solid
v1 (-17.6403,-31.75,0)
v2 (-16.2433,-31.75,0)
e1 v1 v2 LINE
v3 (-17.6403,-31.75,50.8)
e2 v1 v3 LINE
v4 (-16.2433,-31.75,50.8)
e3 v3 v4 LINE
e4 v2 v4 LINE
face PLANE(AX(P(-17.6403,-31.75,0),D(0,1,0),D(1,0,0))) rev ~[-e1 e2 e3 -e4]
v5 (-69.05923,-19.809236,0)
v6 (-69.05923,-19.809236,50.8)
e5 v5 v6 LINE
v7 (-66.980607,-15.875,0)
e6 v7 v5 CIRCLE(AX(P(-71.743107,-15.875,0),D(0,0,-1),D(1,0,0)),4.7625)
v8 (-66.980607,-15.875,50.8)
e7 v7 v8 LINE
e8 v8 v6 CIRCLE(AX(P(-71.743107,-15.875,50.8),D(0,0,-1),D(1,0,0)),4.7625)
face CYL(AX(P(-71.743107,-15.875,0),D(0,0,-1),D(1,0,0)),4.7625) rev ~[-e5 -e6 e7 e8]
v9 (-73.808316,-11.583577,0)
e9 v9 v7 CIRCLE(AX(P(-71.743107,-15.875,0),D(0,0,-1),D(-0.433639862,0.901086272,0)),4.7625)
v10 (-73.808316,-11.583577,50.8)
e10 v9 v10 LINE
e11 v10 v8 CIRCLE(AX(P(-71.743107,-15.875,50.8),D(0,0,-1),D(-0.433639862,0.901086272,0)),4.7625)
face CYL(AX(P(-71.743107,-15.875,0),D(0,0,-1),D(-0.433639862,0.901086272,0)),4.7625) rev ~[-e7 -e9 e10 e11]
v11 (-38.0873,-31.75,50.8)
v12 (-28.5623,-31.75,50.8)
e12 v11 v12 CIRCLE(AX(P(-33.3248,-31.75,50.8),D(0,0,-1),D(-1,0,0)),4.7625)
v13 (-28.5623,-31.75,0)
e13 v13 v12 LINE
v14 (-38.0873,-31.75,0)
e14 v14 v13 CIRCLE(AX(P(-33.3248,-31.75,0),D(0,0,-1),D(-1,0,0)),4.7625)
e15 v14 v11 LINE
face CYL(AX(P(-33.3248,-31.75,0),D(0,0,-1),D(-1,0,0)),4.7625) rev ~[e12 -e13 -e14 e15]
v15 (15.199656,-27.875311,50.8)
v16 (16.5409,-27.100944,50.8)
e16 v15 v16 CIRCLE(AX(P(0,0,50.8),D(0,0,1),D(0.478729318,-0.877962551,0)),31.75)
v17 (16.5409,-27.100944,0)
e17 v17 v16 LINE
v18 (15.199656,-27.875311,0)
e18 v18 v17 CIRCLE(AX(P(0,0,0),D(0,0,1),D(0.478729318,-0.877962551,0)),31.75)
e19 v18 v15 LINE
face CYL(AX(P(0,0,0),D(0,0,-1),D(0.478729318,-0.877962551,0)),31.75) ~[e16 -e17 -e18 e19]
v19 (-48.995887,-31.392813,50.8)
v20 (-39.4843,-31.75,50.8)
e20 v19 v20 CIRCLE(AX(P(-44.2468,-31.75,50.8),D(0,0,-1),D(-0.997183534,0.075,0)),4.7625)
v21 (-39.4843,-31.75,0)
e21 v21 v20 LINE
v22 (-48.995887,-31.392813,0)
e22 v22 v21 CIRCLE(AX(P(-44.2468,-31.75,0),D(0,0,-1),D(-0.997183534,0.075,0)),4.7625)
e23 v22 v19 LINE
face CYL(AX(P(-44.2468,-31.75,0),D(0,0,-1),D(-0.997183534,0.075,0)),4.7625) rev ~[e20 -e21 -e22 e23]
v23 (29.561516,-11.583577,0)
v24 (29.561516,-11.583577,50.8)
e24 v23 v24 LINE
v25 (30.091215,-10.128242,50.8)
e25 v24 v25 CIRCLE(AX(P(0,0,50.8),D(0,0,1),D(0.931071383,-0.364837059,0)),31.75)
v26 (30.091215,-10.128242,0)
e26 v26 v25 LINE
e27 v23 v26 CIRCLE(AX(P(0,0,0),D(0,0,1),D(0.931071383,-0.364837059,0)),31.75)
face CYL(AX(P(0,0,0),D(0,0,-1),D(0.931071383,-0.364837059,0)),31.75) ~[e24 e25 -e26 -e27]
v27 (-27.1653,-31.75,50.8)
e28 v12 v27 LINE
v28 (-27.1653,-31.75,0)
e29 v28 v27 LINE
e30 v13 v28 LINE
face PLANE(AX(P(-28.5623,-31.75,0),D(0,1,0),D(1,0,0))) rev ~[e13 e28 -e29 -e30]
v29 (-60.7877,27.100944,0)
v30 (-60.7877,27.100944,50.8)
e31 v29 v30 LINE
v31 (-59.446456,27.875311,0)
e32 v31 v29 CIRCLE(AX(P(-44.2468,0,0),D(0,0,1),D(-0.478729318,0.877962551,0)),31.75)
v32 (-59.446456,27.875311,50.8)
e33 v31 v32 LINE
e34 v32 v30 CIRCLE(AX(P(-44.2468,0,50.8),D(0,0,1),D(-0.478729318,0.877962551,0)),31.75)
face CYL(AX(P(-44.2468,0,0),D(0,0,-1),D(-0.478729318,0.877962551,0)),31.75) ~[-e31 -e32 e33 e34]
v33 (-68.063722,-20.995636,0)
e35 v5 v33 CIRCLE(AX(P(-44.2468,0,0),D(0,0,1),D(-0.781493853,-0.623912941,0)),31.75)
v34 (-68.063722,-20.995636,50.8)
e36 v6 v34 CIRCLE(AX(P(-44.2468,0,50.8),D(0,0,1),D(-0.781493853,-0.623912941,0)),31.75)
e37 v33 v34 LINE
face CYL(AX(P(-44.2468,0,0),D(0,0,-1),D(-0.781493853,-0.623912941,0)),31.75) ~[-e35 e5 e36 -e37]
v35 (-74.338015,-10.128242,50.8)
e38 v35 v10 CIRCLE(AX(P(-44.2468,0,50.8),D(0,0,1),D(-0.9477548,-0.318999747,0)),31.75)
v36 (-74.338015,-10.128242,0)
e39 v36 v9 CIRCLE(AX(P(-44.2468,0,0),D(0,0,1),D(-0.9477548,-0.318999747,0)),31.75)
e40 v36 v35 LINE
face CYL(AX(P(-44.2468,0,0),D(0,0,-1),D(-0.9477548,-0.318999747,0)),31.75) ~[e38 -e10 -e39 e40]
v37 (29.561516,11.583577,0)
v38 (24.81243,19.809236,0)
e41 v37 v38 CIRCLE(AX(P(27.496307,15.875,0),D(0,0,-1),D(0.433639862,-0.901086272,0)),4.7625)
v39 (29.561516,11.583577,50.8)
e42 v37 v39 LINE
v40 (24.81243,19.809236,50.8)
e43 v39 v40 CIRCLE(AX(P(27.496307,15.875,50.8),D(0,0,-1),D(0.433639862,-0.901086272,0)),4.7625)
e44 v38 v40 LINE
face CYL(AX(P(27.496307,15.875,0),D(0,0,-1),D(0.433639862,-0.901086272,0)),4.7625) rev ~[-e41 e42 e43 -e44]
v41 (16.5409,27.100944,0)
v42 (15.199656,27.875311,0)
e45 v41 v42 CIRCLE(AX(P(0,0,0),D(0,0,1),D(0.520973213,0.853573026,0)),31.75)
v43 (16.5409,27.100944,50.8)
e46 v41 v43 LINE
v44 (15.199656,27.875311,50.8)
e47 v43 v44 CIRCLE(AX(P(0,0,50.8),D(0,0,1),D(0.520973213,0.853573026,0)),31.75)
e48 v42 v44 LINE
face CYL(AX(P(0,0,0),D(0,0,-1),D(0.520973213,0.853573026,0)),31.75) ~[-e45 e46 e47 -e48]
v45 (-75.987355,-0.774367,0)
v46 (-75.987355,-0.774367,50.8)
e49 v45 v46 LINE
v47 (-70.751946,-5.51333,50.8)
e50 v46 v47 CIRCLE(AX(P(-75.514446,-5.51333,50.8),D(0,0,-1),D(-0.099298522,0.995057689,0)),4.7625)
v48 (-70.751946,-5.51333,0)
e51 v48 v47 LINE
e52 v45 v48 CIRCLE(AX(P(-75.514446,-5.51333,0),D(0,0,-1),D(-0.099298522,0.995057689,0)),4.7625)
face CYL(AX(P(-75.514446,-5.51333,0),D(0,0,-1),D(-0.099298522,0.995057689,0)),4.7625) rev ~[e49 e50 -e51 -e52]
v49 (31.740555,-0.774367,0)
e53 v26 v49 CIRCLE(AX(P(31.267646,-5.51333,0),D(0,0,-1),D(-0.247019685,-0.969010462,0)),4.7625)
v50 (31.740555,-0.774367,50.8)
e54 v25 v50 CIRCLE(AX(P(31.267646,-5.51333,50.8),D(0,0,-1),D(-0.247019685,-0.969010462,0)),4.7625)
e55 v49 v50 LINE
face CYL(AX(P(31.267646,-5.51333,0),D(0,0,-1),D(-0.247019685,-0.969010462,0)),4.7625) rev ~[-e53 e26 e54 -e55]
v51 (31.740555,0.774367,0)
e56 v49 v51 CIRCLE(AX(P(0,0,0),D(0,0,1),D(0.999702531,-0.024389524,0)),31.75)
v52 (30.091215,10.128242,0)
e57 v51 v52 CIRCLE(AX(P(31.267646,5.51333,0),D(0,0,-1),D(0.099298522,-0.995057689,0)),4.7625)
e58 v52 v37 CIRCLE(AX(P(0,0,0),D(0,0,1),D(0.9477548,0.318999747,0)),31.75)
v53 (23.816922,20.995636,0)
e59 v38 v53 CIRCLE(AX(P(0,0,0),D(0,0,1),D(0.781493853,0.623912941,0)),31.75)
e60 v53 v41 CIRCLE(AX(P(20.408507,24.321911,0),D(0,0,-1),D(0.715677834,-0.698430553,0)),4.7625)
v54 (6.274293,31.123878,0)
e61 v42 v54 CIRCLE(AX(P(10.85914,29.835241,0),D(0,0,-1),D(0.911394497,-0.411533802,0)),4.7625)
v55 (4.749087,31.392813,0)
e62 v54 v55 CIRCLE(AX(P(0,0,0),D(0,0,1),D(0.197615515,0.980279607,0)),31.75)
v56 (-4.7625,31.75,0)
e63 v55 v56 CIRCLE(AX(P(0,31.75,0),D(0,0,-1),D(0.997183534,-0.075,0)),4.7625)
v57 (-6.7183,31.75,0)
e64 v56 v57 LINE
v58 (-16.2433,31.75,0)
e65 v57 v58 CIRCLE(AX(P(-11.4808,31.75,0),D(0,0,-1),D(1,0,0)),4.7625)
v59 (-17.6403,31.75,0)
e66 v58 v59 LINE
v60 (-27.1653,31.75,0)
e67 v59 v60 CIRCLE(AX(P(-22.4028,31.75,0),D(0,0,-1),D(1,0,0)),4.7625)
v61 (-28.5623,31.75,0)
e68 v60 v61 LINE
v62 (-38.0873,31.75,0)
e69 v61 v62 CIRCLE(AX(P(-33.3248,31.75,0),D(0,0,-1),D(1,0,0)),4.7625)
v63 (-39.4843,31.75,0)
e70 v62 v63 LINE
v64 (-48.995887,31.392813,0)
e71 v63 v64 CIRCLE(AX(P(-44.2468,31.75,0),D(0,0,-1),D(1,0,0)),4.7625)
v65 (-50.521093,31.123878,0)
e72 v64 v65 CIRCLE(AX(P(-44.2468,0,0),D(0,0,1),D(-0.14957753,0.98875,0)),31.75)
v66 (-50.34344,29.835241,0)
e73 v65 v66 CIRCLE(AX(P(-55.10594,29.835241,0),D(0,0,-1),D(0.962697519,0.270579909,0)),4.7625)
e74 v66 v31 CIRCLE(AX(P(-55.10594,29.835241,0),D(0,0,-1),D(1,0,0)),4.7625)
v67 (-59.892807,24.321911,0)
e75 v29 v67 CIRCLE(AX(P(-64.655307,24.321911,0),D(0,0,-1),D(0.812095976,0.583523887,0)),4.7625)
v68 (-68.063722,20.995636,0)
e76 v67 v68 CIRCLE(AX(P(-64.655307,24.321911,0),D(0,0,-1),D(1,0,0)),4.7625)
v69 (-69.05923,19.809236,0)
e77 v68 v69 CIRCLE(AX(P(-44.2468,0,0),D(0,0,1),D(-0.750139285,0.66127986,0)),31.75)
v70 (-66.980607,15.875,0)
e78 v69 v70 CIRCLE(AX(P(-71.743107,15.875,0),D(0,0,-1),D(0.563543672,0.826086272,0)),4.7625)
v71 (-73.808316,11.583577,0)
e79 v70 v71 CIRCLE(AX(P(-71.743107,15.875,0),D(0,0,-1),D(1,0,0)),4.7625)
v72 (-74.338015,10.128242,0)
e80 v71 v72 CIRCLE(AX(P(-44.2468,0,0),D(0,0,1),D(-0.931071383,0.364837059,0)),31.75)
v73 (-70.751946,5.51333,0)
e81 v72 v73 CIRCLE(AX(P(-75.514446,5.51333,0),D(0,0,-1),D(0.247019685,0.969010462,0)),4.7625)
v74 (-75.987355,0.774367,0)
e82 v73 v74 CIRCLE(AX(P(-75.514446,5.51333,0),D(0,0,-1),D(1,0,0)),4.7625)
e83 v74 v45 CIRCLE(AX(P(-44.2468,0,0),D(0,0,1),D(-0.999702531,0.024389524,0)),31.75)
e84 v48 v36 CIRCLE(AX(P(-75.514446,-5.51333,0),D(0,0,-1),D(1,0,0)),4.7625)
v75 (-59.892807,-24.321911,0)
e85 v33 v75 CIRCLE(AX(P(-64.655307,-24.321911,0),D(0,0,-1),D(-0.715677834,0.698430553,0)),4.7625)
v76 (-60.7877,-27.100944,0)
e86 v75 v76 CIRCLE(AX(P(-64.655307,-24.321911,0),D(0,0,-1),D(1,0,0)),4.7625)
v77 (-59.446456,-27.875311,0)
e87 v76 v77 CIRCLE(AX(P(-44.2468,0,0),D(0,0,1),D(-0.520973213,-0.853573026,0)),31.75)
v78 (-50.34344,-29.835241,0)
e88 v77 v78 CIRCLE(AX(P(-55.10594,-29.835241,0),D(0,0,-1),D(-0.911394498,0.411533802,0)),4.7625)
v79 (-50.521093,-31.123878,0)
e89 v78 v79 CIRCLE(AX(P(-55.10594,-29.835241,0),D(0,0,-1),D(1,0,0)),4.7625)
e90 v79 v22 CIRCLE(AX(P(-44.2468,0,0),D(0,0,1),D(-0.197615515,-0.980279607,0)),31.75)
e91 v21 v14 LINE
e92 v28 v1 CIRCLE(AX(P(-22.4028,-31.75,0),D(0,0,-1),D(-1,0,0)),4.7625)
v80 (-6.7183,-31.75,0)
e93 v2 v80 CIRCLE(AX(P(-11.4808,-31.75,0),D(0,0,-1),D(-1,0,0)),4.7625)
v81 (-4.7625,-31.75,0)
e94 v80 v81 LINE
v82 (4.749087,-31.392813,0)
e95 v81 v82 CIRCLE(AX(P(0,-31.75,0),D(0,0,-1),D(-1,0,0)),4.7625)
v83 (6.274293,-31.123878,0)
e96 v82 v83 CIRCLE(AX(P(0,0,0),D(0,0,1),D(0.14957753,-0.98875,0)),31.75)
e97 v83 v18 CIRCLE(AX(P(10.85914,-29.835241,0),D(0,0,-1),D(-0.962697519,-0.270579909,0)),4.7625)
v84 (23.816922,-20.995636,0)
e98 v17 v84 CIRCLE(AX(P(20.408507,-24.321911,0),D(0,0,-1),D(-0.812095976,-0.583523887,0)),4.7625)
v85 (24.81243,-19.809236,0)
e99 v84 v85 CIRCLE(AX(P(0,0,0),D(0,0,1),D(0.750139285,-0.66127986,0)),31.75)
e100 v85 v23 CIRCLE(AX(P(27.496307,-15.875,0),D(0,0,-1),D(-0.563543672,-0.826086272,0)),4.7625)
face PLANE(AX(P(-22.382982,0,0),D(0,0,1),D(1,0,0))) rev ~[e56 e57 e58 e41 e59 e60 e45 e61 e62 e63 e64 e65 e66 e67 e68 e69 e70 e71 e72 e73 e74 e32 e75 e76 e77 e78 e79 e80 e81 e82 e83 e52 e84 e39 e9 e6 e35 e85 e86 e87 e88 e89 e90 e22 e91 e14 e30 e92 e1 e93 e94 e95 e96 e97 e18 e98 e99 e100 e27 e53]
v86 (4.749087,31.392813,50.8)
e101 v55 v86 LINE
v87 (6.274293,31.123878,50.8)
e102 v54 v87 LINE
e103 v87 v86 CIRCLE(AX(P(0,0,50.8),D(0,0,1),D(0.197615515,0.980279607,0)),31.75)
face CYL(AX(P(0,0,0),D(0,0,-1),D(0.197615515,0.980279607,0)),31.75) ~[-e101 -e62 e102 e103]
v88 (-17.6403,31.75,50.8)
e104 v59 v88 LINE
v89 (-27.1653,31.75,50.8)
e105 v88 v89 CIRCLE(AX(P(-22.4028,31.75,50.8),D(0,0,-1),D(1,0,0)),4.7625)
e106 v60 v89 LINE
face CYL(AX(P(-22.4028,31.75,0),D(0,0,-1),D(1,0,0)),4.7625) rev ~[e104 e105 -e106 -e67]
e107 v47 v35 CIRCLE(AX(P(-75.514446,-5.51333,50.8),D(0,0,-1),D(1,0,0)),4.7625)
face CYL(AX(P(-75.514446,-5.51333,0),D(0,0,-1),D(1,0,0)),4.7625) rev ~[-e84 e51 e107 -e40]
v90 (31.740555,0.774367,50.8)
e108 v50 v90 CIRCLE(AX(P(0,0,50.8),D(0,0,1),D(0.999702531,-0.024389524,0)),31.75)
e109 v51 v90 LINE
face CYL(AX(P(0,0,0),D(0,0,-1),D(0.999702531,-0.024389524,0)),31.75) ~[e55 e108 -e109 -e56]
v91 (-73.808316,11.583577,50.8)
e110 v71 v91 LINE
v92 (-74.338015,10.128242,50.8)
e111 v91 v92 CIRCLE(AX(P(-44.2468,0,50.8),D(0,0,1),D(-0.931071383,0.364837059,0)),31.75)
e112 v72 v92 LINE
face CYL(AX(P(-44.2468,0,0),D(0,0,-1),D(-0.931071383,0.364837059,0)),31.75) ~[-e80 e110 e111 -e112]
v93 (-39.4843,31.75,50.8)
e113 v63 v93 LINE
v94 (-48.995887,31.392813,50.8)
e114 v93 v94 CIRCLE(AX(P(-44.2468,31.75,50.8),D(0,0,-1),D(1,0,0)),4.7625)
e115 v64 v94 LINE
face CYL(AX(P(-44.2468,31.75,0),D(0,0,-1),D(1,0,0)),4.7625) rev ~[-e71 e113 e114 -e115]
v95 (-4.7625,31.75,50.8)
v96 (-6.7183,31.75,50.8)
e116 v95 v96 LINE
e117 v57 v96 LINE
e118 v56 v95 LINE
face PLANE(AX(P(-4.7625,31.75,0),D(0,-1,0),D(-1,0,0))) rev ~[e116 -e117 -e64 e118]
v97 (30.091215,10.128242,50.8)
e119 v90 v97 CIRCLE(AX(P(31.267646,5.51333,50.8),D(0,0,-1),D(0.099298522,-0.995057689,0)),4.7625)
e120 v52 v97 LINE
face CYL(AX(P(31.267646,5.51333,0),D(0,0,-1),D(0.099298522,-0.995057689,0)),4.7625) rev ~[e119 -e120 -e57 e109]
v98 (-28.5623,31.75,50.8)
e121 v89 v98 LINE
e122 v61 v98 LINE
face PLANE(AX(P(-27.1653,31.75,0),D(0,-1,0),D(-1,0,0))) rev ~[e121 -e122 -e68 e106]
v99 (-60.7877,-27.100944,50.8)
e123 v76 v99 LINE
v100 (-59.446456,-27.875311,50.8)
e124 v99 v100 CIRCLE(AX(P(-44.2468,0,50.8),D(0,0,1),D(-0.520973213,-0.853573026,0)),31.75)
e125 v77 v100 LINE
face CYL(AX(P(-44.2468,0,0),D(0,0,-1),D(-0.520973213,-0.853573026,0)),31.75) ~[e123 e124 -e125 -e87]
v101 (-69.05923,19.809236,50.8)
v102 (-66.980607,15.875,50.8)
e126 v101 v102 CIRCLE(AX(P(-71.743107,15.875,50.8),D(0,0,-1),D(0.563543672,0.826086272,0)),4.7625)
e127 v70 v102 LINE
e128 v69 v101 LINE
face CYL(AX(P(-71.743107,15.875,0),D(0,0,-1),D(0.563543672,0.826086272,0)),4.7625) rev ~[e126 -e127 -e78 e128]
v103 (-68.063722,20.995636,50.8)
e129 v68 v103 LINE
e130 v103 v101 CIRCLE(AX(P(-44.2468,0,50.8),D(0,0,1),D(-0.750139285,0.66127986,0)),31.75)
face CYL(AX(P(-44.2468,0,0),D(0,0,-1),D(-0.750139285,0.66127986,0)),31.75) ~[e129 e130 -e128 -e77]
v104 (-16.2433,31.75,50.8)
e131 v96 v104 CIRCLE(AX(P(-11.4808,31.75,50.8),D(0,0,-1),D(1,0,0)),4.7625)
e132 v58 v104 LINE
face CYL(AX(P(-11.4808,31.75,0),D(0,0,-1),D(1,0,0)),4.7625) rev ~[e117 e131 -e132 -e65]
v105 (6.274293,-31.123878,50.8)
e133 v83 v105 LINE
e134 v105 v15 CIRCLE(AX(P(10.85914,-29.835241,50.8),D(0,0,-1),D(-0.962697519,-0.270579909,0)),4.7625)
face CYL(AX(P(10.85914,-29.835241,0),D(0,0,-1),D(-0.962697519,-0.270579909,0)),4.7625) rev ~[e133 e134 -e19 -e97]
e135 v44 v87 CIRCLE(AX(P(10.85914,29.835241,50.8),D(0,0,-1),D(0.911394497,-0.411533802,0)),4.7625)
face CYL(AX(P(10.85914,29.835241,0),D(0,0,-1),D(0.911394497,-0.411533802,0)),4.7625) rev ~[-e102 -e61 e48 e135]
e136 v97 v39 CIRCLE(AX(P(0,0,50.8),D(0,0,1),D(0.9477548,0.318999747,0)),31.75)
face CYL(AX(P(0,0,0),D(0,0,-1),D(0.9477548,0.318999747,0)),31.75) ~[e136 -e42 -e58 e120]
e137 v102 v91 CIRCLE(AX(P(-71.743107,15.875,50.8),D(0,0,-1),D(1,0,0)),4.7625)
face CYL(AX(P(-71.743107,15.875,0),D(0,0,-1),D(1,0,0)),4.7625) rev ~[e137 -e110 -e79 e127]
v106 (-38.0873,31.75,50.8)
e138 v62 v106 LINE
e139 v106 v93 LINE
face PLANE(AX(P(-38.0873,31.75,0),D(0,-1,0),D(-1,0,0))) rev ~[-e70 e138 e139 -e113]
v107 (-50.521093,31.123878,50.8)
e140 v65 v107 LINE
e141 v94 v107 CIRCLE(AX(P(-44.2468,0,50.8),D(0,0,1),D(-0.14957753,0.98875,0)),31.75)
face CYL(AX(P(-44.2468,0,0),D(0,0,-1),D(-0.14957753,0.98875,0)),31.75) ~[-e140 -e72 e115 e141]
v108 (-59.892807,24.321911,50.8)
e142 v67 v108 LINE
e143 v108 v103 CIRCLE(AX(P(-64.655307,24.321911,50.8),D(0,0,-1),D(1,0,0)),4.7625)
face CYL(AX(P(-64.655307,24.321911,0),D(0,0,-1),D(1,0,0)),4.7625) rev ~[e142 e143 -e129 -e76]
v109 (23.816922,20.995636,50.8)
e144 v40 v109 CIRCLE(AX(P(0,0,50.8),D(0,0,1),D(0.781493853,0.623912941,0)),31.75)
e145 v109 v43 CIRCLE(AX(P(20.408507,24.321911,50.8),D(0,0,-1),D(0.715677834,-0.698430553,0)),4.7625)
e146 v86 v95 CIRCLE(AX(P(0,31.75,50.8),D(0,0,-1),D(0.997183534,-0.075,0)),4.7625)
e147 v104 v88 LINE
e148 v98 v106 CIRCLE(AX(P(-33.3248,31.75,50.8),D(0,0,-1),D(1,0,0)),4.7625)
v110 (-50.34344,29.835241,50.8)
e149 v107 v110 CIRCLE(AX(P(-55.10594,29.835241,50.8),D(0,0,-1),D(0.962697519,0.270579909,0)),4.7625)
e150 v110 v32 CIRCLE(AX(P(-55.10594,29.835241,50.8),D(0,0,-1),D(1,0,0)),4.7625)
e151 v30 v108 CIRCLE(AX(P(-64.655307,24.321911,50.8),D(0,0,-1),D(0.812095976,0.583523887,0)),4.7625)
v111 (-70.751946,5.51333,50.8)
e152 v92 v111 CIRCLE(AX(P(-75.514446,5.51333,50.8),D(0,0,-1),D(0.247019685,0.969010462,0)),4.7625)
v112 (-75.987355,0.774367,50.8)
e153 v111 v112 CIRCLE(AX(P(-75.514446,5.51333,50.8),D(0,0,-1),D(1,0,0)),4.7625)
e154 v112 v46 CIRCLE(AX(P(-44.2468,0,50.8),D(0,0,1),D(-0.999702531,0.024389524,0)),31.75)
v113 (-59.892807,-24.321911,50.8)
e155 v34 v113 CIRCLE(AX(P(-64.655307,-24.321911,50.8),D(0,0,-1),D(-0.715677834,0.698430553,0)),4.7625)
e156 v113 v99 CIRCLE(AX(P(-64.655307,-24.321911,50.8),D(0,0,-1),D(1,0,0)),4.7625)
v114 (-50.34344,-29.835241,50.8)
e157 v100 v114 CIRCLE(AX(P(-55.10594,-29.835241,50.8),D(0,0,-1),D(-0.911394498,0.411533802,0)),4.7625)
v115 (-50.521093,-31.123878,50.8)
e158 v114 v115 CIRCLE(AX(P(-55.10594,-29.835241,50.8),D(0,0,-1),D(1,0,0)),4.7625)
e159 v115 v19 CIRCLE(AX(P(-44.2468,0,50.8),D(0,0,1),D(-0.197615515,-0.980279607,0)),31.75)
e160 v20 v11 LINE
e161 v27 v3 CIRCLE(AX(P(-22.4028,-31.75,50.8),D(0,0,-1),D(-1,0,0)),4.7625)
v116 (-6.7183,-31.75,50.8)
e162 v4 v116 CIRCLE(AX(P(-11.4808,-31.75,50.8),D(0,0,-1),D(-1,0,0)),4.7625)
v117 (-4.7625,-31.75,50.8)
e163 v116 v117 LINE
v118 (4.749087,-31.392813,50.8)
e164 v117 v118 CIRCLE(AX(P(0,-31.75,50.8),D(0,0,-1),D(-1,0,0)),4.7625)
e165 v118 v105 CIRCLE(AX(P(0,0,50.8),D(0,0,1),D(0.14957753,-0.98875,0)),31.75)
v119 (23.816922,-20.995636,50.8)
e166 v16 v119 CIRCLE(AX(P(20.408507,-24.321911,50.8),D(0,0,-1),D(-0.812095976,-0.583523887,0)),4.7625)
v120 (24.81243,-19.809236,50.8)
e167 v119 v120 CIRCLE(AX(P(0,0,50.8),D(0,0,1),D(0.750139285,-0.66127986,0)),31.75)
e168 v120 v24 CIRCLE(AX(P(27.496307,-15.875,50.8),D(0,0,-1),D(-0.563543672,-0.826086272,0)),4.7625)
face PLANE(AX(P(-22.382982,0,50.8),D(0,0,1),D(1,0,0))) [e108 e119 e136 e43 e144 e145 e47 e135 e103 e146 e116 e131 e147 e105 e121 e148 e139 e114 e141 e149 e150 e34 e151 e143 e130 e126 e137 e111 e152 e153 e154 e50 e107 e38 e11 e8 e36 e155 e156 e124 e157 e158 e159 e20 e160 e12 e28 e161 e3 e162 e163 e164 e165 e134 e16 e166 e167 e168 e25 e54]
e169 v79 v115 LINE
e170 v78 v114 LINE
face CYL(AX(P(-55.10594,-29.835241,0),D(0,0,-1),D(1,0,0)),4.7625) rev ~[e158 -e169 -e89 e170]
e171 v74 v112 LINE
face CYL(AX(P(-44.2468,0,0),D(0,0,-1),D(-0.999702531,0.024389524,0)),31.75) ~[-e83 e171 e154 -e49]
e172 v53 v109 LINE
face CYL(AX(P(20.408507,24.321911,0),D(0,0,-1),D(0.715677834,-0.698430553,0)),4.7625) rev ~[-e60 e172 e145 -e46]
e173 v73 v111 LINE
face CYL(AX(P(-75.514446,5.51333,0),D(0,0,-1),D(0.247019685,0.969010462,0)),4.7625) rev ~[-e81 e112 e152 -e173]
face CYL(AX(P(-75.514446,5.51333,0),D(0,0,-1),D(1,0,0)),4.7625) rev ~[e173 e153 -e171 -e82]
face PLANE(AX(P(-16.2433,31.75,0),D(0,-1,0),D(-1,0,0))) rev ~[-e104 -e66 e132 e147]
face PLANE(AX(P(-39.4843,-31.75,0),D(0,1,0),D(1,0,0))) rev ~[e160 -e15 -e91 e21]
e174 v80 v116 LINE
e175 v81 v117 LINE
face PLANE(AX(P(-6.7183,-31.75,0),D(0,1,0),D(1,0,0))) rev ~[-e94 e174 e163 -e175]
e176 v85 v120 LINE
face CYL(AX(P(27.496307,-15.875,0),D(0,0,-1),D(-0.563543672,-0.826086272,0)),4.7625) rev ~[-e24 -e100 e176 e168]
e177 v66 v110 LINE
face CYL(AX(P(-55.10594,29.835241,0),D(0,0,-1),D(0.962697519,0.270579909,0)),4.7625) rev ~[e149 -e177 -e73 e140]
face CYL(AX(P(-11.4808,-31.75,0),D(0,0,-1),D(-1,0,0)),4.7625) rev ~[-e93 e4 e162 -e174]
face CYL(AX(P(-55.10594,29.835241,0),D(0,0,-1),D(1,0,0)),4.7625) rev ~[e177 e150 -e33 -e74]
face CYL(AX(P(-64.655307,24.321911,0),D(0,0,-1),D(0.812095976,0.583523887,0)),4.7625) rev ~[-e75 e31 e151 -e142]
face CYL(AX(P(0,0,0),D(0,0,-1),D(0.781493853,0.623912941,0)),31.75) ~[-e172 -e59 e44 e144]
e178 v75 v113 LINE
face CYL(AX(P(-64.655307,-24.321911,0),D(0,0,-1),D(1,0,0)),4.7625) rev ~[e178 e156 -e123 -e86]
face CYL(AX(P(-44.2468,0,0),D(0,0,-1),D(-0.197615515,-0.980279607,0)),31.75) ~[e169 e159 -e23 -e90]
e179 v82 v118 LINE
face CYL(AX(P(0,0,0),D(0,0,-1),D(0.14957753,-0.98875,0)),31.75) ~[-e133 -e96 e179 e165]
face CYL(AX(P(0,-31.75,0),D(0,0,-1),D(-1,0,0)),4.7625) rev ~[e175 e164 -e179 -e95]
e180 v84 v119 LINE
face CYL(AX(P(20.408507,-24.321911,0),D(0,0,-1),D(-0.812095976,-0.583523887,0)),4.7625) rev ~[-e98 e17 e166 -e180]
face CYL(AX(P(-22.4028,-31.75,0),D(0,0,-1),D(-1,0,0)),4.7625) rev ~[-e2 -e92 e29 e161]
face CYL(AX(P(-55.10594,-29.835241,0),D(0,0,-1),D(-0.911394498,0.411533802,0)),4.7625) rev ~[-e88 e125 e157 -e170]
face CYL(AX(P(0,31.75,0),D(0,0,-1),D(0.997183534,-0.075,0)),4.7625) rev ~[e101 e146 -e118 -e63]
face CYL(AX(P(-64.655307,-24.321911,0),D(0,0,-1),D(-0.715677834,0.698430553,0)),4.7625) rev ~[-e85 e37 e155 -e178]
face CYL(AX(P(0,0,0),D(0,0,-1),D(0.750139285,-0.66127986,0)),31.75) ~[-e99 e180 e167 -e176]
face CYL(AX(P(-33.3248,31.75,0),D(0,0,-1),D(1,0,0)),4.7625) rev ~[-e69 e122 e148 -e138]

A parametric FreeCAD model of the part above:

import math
import FreeCAD as App
import Part
import Sketcher
from FreeCAD import Vector
Q = App.Units.Quantity

doc = App.newDocument("Part")
params = doc.addObject("Spreadsheet::Sheet", "Params")
for row, (alias, value) in enumerate([
    ("sketch1_radius", "1.25 in"),
    ("sketch1_radius2", "0.1875 in"),
    ("sketch1_width", "0.055 in"),
    ("sketch1_width2", "0.077 in"),
    ("pad1_length", "2 in"),
], start=1):
    params.set(f"A{row}", alias)
    params.set(f"B{row}", "=" + value)
    params.setAlias(f"B{row}", alias)

body = doc.addObject("PartDesign::Body", "Body")

sketch1 = body.newObject("Sketcher::SketchObject", "Sketch")
sketch1.AttachmentSupport = (doc.getObject("XY_Plane"), [""])
sketch1.MapMode = "FlatFace"
sketch1.addGeometry(Part.ArcOfCircle(Part.Circle(Vector(-44.2, 31.8, 0), Vector(0, 0, 1), 4.8), math.radians(-176), math.radians(0)), False)
sketch1.addGeometry(Part.ArcOfCircle(Part.Circle(Vector(-44.2, 0, 0), Vector(0, 0, 1), 31.8), math.radians(98.6), math.radians(101.4)), False)
sketch1.addGeometry(Part.ArcOfCircle(Part.Circle(Vector(-55.1, 29.8, 0), Vector(0, 0, 1), 4.8), math.radians(0), math.radians(15.7)), False)
sketch1.addGeometry(Part.ArcOfCircle(Part.Circle(Vector(-55.1, 29.8, 0), Vector(0, 0, 1), 4.8), math.radians(-156), math.radians(0)), False)
sketch1.addGeometry(Part.ArcOfCircle(Part.Circle(Vector(-44.2, 0, 0), Vector(0, 0, 1), 31.7), math.radians(118.6), math.radians(121.4)), False)
sketch1.addGeometry(Part.ArcOfCircle(Part.Circle(Vector(-64.7, 24.3, 0), Vector(0, 0, 1), 4.8), math.radians(0), math.radians(36)), False)
sketch1.addGeometry(Part.ArcOfCircle(Part.Circle(Vector(-64.7, 24.3, 0), Vector(0, 0, 1), 4.8), math.radians(-136), math.radians(0)), False)
sketch1.addGeometry(Part.ArcOfCircle(Part.Circle(Vector(-44.2, 0, 0), Vector(0, 0, 1), 31.8), math.radians(138.6), math.radians(141.4)), False)
sketch1.addGeometry(Part.ArcOfCircle(Part.Circle(Vector(-71.7, 15.9, 0), Vector(0, 0, 1), 4.8), math.radians(0), math.radians(56)), False)
sketch1.addGeometry(Part.ArcOfCircle(Part.Circle(Vector(-71.7, 15.9, 0), Vector(0, 0, 1), 4.8), math.radians(-116), math.radians(0)), False)
sketch1.addGeometry(Part.ArcOfCircle(Part.Circle(Vector(-44.2, 0, 0), Vector(0, 0, 1), 31.7), math.radians(158.6), math.radians(161.4)), False)
sketch1.addGeometry(Part.ArcOfCircle(Part.Circle(Vector(-75.5, 5.5, 0), Vector(0, 0, 1), 4.8), math.radians(0), math.radians(76)), False)
sketch1.addGeometry(Part.ArcOfCircle(Part.Circle(Vector(-75.5, 5.5, 0), Vector(0, 0, 1), 4.8), math.radians(-96), math.radians(0)), False)
sketch1.addGeometry(Part.ArcOfCircle(Part.Circle(Vector(-44.2, 0, 0), Vector(0, 0, 1), 31.8), math.radians(178.6), math.radians(181.4)), False)
sketch1.addGeometry(Part.ArcOfCircle(Part.Circle(Vector(-75.5, -5.5, 0), Vector(0, 0, 1), 4.8), math.radians(0), math.radians(96)), False)
sketch1.addGeometry(Part.ArcOfCircle(Part.Circle(Vector(-75.5, -5.5, 0), Vector(0, 0, 1), 4.8), math.radians(-76), math.radians(0)), False)
sketch1.addGeometry(Part.ArcOfCircle(Part.Circle(Vector(-44.2, 0, 0), Vector(0, 0, 1), 31.7), math.radians(-161.4), math.radians(-158.6)), False)
sketch1.addGeometry(Part.ArcOfCircle(Part.Circle(Vector(-71.7, -15.9, 0), Vector(0, 0, 1), 4.8), math.radians(0), math.radians(116)), False)
sketch1.addGeometry(Part.ArcOfCircle(Part.Circle(Vector(-71.7, -15.9, 0), Vector(0, 0, 1), 4.8), math.radians(-56), math.radians(0)), False)
sketch1.addGeometry(Part.ArcOfCircle(Part.Circle(Vector(-44.2, 0, 0), Vector(0, 0, 1), 31.8), math.radians(-141.4), math.radians(-138.6)), False)
sketch1.addGeometry(Part.ArcOfCircle(Part.Circle(Vector(-64.7, -24.3, 0), Vector(0, 0, 1), 4.8), math.radians(0), math.radians(136)), False)
sketch1.addGeometry(Part.ArcOfCircle(Part.Circle(Vector(-64.7, -24.3, 0), Vector(0, 0, 1), 4.8), math.radians(-36), math.radians(0)), False)
sketch1.addGeometry(Part.ArcOfCircle(Part.Circle(Vector(-44.2, 0, 0), Vector(0, 0, 1), 31.7), math.radians(-121.4), math.radians(-118.6)), False)
sketch1.addGeometry(Part.ArcOfCircle(Part.Circle(Vector(-55.1, -29.8, 0), Vector(0, 0, 1), 4.8), math.radians(0), math.radians(156)), False)
sketch1.addGeometry(Part.ArcOfCircle(Part.Circle(Vector(-55.1, -29.8, 0), Vector(0, 0, 1), 4.8), math.radians(-15.7), math.radians(0)), False)
sketch1.addGeometry(Part.ArcOfCircle(Part.Circle(Vector(-44.2, 0, 0), Vector(0, 0, 1), 31.8), math.radians(-101.4), math.radians(-98.6)), False)
sketch1.addGeometry(Part.ArcOfCircle(Part.Circle(Vector(-44.2, -31.8, 0), Vector(0, 0, 1), 4.8), math.radians(0), math.radians(176)), False)
sketch1.addGeometry(Part.LineSegment(Vector(-39.5, -31.8, 0), Vector(-38.1, -31.8, 0)), False)
sketch1.addGeometry(Part.ArcOfCircle(Part.Circle(Vector(-33.3, -31.8, 0), Vector(0, 0, 1), 4.8), math.radians(0), math.radians(180)), False)
sketch1.addGeometry(Part.LineSegment(Vector(-28.6, -31.8, 0), Vector(-27.2, -31.8, 0)), False)
sketch1.addGeometry(Part.ArcOfCircle(Part.Circle(Vector(-22.4, -31.8, 0), Vector(0, 0, 1), 4.8), math.radians(0), math.radians(180)), False)
sketch1.addGeometry(Part.LineSegment(Vector(-17.6, -31.8, 0), Vector(-16.2, -31.8, 0)), False)
sketch1.addGeometry(Part.ArcOfCircle(Part.Circle(Vector(-11.5, -31.8, 0), Vector(0, 0, 1), 4.8), math.radians(0), math.radians(180)), False)
sketch1.addGeometry(Part.LineSegment(Vector(-6.7, -31.8, 0), Vector(-4.8, -31.8, 0)), False)
sketch1.addGeometry(Part.ArcOfCircle(Part.Circle(Vector(0, -31.8, 0), Vector(0, 0, 1), 4.8), math.radians(4), math.radians(180)), False)
sketch1.addGeometry(Part.ArcOfCircle(Part.Circle(Vector(0, 0, 0), Vector(0, 0, 1), 31.8), math.radians(-81.4), math.radians(-78.6)), False)
sketch1.addGeometry(Part.ArcOfCircle(Part.Circle(Vector(10.9, -29.8, 0), Vector(0, 0, 1), 4.8), math.radians(24), math.radians(196)), False)
sketch1.addGeometry(Part.ArcOfCircle(Part.Circle(Vector(0, 0, 0), Vector(0, 0, 1), 31.7), math.radians(-61.4), math.radians(-58.6)), False)
sketch1.addGeometry(Part.ArcOfCircle(Part.Circle(Vector(20.4, -24.3, 0), Vector(0, 0, 1), 4.8), math.radians(44), math.radians(216)), False)
sketch1.addGeometry(Part.ArcOfCircle(Part.Circle(Vector(0, 0, 0), Vector(0, 0, 1), 31.8), math.radians(-41.4), math.radians(-38.6)), False)
sketch1.addGeometry(Part.ArcOfCircle(Part.Circle(Vector(27.5, -15.9, 0), Vector(0, 0, 1), 4.8), math.radians(64), math.radians(236)), False)
sketch1.addGeometry(Part.ArcOfCircle(Part.Circle(Vector(0, 0, 0), Vector(0, 0, 1), 31.7), math.radians(-21.4), math.radians(-18.6)), False)
sketch1.addGeometry(Part.ArcOfCircle(Part.Circle(Vector(31.3, -5.5, 0), Vector(0, 0, 1), 4.8), math.radians(84), math.radians(256)), False)
sketch1.addGeometry(Part.ArcOfCircle(Part.Circle(Vector(0, 0, 0), Vector(0, 0, 1), 31.8), math.radians(-1.4), math.radians(1.4)), False)
sketch1.addGeometry(Part.ArcOfCircle(Part.Circle(Vector(31.3, 5.5, 0), Vector(0, 0, 1), 4.8), math.radians(104), math.radians(276)), False)
sketch1.addGeometry(Part.ArcOfCircle(Part.Circle(Vector(0, 0, 0), Vector(0, 0, 1), 31.7), math.radians(18.6), math.radians(21.4)), False)
sketch1.addGeometry(Part.ArcOfCircle(Part.Circle(Vector(27.5, 15.9, 0), Vector(0, 0, 1), 4.8), math.radians(124), math.radians(296)), False)
sketch1.addGeometry(Part.ArcOfCircle(Part.Circle(Vector(0, 0, 0), Vector(0, 0, 1), 31.8), math.radians(38.6), math.radians(41.4)), False)
sketch1.addGeometry(Part.ArcOfCircle(Part.Circle(Vector(20.4, 24.3, 0), Vector(0, 0, 1), 4.8), math.radians(144), math.radians(316)), False)
sketch1.addGeometry(Part.ArcOfCircle(Part.Circle(Vector(0, 0, 0), Vector(0, 0, 1), 31.7), math.radians(58.6), math.radians(61.4)), False)
sketch1.addGeometry(Part.ArcOfCircle(Part.Circle(Vector(10.9, 29.8, 0), Vector(0, 0, 1), 4.8), math.radians(164), math.radians(336)), False)
sketch1.addGeometry(Part.ArcOfCircle(Part.Circle(Vector(0, 0, 0), Vector(0, 0, 1), 31.8), math.radians(78.6), math.radians(81.4)), False)
sketch1.addGeometry(Part.ArcOfCircle(Part.Circle(Vector(0, 31.8, 0), Vector(0, 0, 1), 4.8), math.radians(180), math.radians(356)), False)
sketch1.addGeometry(Part.LineSegment(Vector(-4.8, 31.8, 0), Vector(-6.7, 31.8, 0)), False)
sketch1.addGeometry(Part.ArcOfCircle(Part.Circle(Vector(-11.5, 31.8, 0), Vector(0, 0, 1), 4.8), math.radians(180), math.radians(360)), False)
sketch1.addGeometry(Part.LineSegment(Vector(-16.2, 31.8, 0), Vector(-17.6, 31.8, 0)), False)
sketch1.addGeometry(Part.ArcOfCircle(Part.Circle(Vector(-22.4, 31.8, 0), Vector(0, 0, 1), 4.8), math.radians(180), math.radians(360)), False)
sketch1.addGeometry(Part.LineSegment(Vector(-27.2, 31.8, 0), Vector(-28.6, 31.8, 0)), False)
sketch1.addGeometry(Part.ArcOfCircle(Part.Circle(Vector(-33.3, 31.8, 0), Vector(0, 0, 1), 4.8), math.radians(180), math.radians(360)), False)
sketch1.addGeometry(Part.LineSegment(Vector(-38.1, 31.8, 0), Vector(-39.5, 31.8, 0)), False)
sketch1.addConstraint(Sketcher.Constraint("Coincident", 0, 1, 1, 1))
sketch1.addConstraint(Sketcher.Constraint("Coincident", 1, 2, 2, 2))
sketch1.addConstraint(Sketcher.Constraint("Tangent", 2, 1, 3, 2))
sketch1.addConstraint(Sketcher.Constraint("Coincident", 3, 1, 4, 1))
sketch1.addConstraint(Sketcher.Constraint("Coincident", 4, 2, 5, 2))
sketch1.addConstraint(Sketcher.Constraint("Tangent", 5, 1, 6, 2))
sketch1.addConstraint(Sketcher.Constraint("Coincident", 6, 1, 7, 1))
sketch1.addConstraint(Sketcher.Constraint("Coincident", 7, 2, 8, 2))
sketch1.addConstraint(Sketcher.Constraint("Tangent", 8, 1, 9, 2))
sketch1.addConstraint(Sketcher.Constraint("Coincident", 9, 1, 10, 1))
sketch1.addConstraint(Sketcher.Constraint("Coincident", 10, 2, 11, 2))
sketch1.addConstraint(Sketcher.Constraint("Tangent", 11, 1, 12, 2))
sketch1.addConstraint(Sketcher.Constraint("Coincident", 12, 1, 13, 1))
sketch1.addConstraint(Sketcher.Constraint("Coincident", 13, 2, 14, 2))
sketch1.addConstraint(Sketcher.Constraint("Tangent", 14, 1, 15, 2))
sketch1.addConstraint(Sketcher.Constraint("Coincident", 15, 1, 16, 1))
sketch1.addConstraint(Sketcher.Constraint("Coincident", 16, 2, 17, 2))
sketch1.addConstraint(Sketcher.Constraint("Tangent", 17, 1, 18, 2))
sketch1.addConstraint(Sketcher.Constraint("Coincident", 18, 1, 19, 1))
sketch1.addConstraint(Sketcher.Constraint("Coincident", 19, 2, 20, 2))
sketch1.addConstraint(Sketcher.Constraint("Tangent", 20, 1, 21, 2))
sketch1.addConstraint(Sketcher.Constraint("Coincident", 21, 1, 22, 1))
sketch1.addConstraint(Sketcher.Constraint("Coincident", 22, 2, 23, 2))
sketch1.addConstraint(Sketcher.Constraint("Tangent", 23, 1, 24, 2))
sketch1.addConstraint(Sketcher.Constraint("Coincident", 24, 1, 25, 1))
sketch1.addConstraint(Sketcher.Constraint("Coincident", 25, 2, 26, 2))
sketch1.addConstraint(Sketcher.Constraint("Coincident", 26, 1, 27, 1))
sketch1.addConstraint(Sketcher.Constraint("Coincident", 27, 2, 28, 2))
sketch1.addConstraint(Sketcher.Constraint("Coincident", 28, 1, 29, 1))
sketch1.addConstraint(Sketcher.Constraint("Coincident", 29, 2, 30, 2))
sketch1.addConstraint(Sketcher.Constraint("Coincident", 30, 1, 31, 1))
sketch1.addConstraint(Sketcher.Constraint("Coincident", 31, 2, 32, 2))
sketch1.addConstraint(Sketcher.Constraint("Coincident", 32, 1, 33, 1))
sketch1.addConstraint(Sketcher.Constraint("Coincident", 33, 2, 34, 2))
sketch1.addConstraint(Sketcher.Constraint("Coincident", 34, 1, 35, 1))
sketch1.addConstraint(Sketcher.Constraint("Coincident", 35, 2, 36, 2))
sketch1.addConstraint(Sketcher.Constraint("Coincident", 36, 1, 37, 1))
sketch1.addConstraint(Sketcher.Constraint("Coincident", 37, 2, 38, 2))
sketch1.addConstraint(Sketcher.Constraint("Coincident", 38, 1, 39, 1))
sketch1.addConstraint(Sketcher.Constraint("Coincident", 39, 2, 40, 2))
sketch1.addConstraint(Sketcher.Constraint("Coincident", 40, 1, 41, 1))
sketch1.addConstraint(Sketcher.Constraint("Coincident", 41, 2, 42, 2))
sketch1.addConstraint(Sketcher.Constraint("Coincident", 42, 1, 43, 1))
sketch1.addConstraint(Sketcher.Constraint("Coincident", 43, 2, 44, 2))
sketch1.addConstraint(Sketcher.Constraint("Coincident", 44, 1, 45, 1))
sketch1.addConstraint(Sketcher.Constraint("Coincident", 45, 2, 46, 2))
sketch1.addConstraint(Sketcher.Constraint("Coincident", 46, 1, 47, 1))
sketch1.addConstraint(Sketcher.Constraint("Coincident", 47, 2, 48, 2))
sketch1.addConstraint(Sketcher.Constraint("Coincident", 48, 1, 49, 1))
sketch1.addConstraint(Sketcher.Constraint("Coincident", 49, 2, 50, 2))
sketch1.addConstraint(Sketcher.Constraint("Coincident", 50, 1, 51, 1))
sketch1.addConstraint(Sketcher.Constraint("Coincident", 51, 2, 52, 2))
sketch1.addConstraint(Sketcher.Constraint("Coincident", 52, 1, 53, 1))
sketch1.addConstraint(Sketcher.Constraint("Coincident", 53, 2, 54, 2))
sketch1.addConstraint(Sketcher.Constraint("Coincident", 54, 1, 55, 1))
sketch1.addConstraint(Sketcher.Constraint("Coincident", 55, 2, 56, 2))
sketch1.addConstraint(Sketcher.Constraint("Coincident", 56, 1, 57, 1))
sketch1.addConstraint(Sketcher.Constraint("Coincident", 57, 2, 58, 2))
sketch1.addConstraint(Sketcher.Constraint("Coincident", 58, 1, 59, 1))
sketch1.addConstraint(Sketcher.Constraint("Coincident", 59, 2, 0, 2))
sketch1.addConstraint(Sketcher.Constraint("Horizontal", 27))
sketch1.addConstraint(Sketcher.Constraint("Horizontal", 29))
sketch1.addConstraint(Sketcher.Constraint("Horizontal", 31))
sketch1.addConstraint(Sketcher.Constraint("Horizontal", 33))
sketch1.addConstraint(Sketcher.Constraint("Horizontal", 53))
sketch1.addConstraint(Sketcher.Constraint("Horizontal", 55))
sketch1.addConstraint(Sketcher.Constraint("Horizontal", 57))
sketch1.addConstraint(Sketcher.Constraint("Horizontal", 59))
sketch1.addConstraint(Sketcher.Constraint("Coincident", 35, 3, -1, 1))
sketch1.addConstraint(Sketcher.Constraint("Coincident", 37, 3, -1, 1))
sketch1.addConstraint(Sketcher.Constraint("Coincident", 39, 3, -1, 1))
sketch1.addConstraint(Sketcher.Constraint("Coincident", 41, 3, -1, 1))
sketch1.addConstraint(Sketcher.Constraint("Coincident", 43, 3, -1, 1))
sketch1.addConstraint(Sketcher.Constraint("Coincident", 45, 3, -1, 1))
sketch1.addConstraint(Sketcher.Constraint("Coincident", 47, 3, -1, 1))
sketch1.addConstraint(Sketcher.Constraint("Coincident", 49, 3, -1, 1))
sketch1.addConstraint(Sketcher.Constraint("Coincident", 51, 3, -1, 1))
sketch1.addConstraint(Sketcher.Constraint("Coincident", 4, 3, 1, 3))
sketch1.addConstraint(Sketcher.Constraint("Coincident", 7, 3, 1, 3))
sketch1.addConstraint(Sketcher.Constraint("Coincident", 10, 3, 1, 3))
sketch1.addConstraint(Sketcher.Constraint("Coincident", 13, 3, 1, 3))
sketch1.addConstraint(Sketcher.Constraint("Coincident", 16, 3, 1, 3))
sketch1.addConstraint(Sketcher.Constraint("Coincident", 19, 3, 1, 3))
sketch1.addConstraint(Sketcher.Constraint("Coincident", 22, 3, 1, 3))
sketch1.addConstraint(Sketcher.Constraint("Coincident", 25, 3, 1, 3))
sketch1.addConstraint(Sketcher.Constraint("Equal", 0, 2))
sketch1.addConstraint(Sketcher.Constraint("Equal", 2, 3))
sketch1.addConstraint(Sketcher.Constraint("Equal", 1, 4))
sketch1.addConstraint(Sketcher.Constraint("Equal", 3, 5))
sketch1.addConstraint(Sketcher.Constraint("Equal", 5, 6))
sketch1.addConstraint(Sketcher.Constraint("Equal", 4, 7))
sketch1.addConstraint(Sketcher.Constraint("Equal", 6, 8))
sketch1.addConstraint(Sketcher.Constraint("Equal", 8, 9))
sketch1.addConstraint(Sketcher.Constraint("Equal", 7, 10))
sketch1.addConstraint(Sketcher.Constraint("Equal", 9, 11))
sketch1.addConstraint(Sketcher.Constraint("Equal", 11, 12))
sketch1.addConstraint(Sketcher.Constraint("Equal", 10, 13))
sketch1.addConstraint(Sketcher.Constraint("Equal", 12, 14))
sketch1.addConstraint(Sketcher.Constraint("Equal", 14, 15))
sketch1.addConstraint(Sketcher.Constraint("Equal", 13, 16))
sketch1.addConstraint(Sketcher.Constraint("Equal", 15, 17))
sketch1.addConstraint(Sketcher.Constraint("Equal", 17, 18))
sketch1.addConstraint(Sketcher.Constraint("Equal", 16, 19))
sketch1.addConstraint(Sketcher.Constraint("Equal", 18, 20))
sketch1.addConstraint(Sketcher.Constraint("Equal", 20, 21))
sketch1.addConstraint(Sketcher.Constraint("Equal", 19, 22))
sketch1.addConstraint(Sketcher.Constraint("Equal", 21, 23))
sketch1.addConstraint(Sketcher.Constraint("Equal", 23, 24))
sketch1.addConstraint(Sketcher.Constraint("Equal", 22, 25))
sketch1.addConstraint(Sketcher.Constraint("Equal", 24, 26))
sketch1.addConstraint(Sketcher.Constraint("Equal", 26, 28))
sketch1.addConstraint(Sketcher.Constraint("Equal", 28, 30))
sketch1.addConstraint(Sketcher.Constraint("Equal", 30, 32))
sketch1.addConstraint(Sketcher.Constraint("Equal", 32, 34))
sketch1.addConstraint(Sketcher.Constraint("Equal", 25, 35))
sketch1.addConstraint(Sketcher.Constraint("Equal", 34, 36))
sketch1.addConstraint(Sketcher.Constraint("Equal", 35, 37))
sketch1.addConstraint(Sketcher.Constraint("Equal", 36, 38))
sketch1.addConstraint(Sketcher.Constraint("Equal", 37, 39))
sketch1.addConstraint(Sketcher.Constraint("Equal", 38, 40))
sketch1.addConstraint(Sketcher.Constraint("Equal", 39, 41))
sketch1.addConstraint(Sketcher.Constraint("Equal", 40, 42))
sketch1.addConstraint(Sketcher.Constraint("Equal", 41, 43))
sketch1.addConstraint(Sketcher.Constraint("Equal", 42, 44))
sketch1.addConstraint(Sketcher.Constraint("Equal", 43, 45))
sketch1.addConstraint(Sketcher.Constraint("Equal", 44, 46))
sketch1.addConstraint(Sketcher.Constraint("Equal", 45, 47))
sketch1.addConstraint(Sketcher.Constraint("Equal", 46, 48))
sketch1.addConstraint(Sketcher.Constraint("Equal", 47, 49))
sketch1.addConstraint(Sketcher.Constraint("Equal", 48, 50))
sketch1.addConstraint(Sketcher.Constraint("Equal", 49, 51))
sketch1.addConstraint(Sketcher.Constraint("Equal", 50, 52))
sketch1.addConstraint(Sketcher.Constraint("Equal", 52, 54))
sketch1.addConstraint(Sketcher.Constraint("Equal", 54, 56))
sketch1.addConstraint(Sketcher.Constraint("Equal", 56, 58))
sketch1.addConstraint(Sketcher.Constraint("Symmetric", 34, 3, 52, 3, -1, 1))
sketch1.addConstraint(Sketcher.Constraint("Symmetric", 11, 3, 14, 3, -1))
sketch1.addConstraint(Sketcher.Constraint("Symmetric", 8, 3, 17, 3, -1))
sketch1.addConstraint(Sketcher.Constraint("Symmetric", 5, 3, 20, 3, -1))
sketch1.addConstraint(Sketcher.Constraint("Symmetric", 2, 3, 23, 3, -1))
sketch1.addConstraint(Sketcher.Constraint("Symmetric", 0, 3, 26, 3, -1))
sketch1.addConstraint(Sketcher.Constraint("Symmetric", 42, 3, 44, 3, -1))
sketch1.addConstraint(Sketcher.Constraint("Symmetric", 40, 3, 46, 3, -1))
sketch1.addConstraint(Sketcher.Constraint("Symmetric", 38, 3, 48, 3, -1))
sketch1.addConstraint(Sketcher.Constraint("Symmetric", 36, 3, 50, 3, -1))
sketch1.addConstraint(Sketcher.Constraint("Symmetric", 32, 3, 54, 3, -1))
sketch1.addConstraint(Sketcher.Constraint("Symmetric", 30, 3, 56, 3, -1))
sketch1.addConstraint(Sketcher.Constraint("Symmetric", 28, 3, 58, 3, -1))
sketch1.addConstraint(Sketcher.Constraint("Symmetric", 33, 2, 52, 1, -1))
sketch1.addConstraint(Sketcher.Constraint("PointOnObject", 1, 3, -1))
sketch1.addConstraint(Sketcher.Constraint("Horizontal", 26, 3, 28, 3))
sketch1.addConstraint(Sketcher.Constraint("Horizontal", 28, 3, 30, 3))
sketch1.addConstraint(Sketcher.Constraint("Horizontal", 30, 3, 32, 3))
sketch1.addConstraint(Sketcher.Constraint("Horizontal", 32, 3, 34, 3))
sketch1.addConstraint(Sketcher.Constraint("Horizontal", 24, 3, 36, 3))
sketch1.addConstraint(Sketcher.Constraint("Horizontal", 21, 3, 38, 3))
sketch1.addConstraint(Sketcher.Constraint("Horizontal", 18, 3, 40, 3))
sketch1.addConstraint(Sketcher.Constraint("Horizontal", 15, 3, 42, 3))
sketch1.addConstraint(Sketcher.Constraint("Horizontal", 50, 3, 2, 1))
sketch1.addConstraint(Sketcher.Constraint("Horizontal", 48, 3, 5, 1))
sketch1.addConstraint(Sketcher.Constraint("Horizontal", 46, 3, 8, 1))
sketch1.addConstraint(Sketcher.Constraint("Horizontal", 44, 3, 11, 1))
sketch1.addConstraint(Sketcher.Constraint("Horizontal", 42, 3, 14, 1))
sketch1.addConstraint(Sketcher.Constraint("Horizontal", 40, 3, 17, 1))
sketch1.addConstraint(Sketcher.Constraint("Horizontal", 38, 3, 20, 1))
sketch1.addConstraint(Sketcher.Constraint("Horizontal", 36, 3, 23, 1))
sketch1.addConstraint(Sketcher.Constraint("Horizontal", 34, 3, 26, 1))
sketch1.addConstraint(Sketcher.Constraint("Horizontal", 27, 2, 28, 1))
sketch1.addConstraint(Sketcher.Constraint("Horizontal", 29, 2, 30, 1))
sketch1.addConstraint(Sketcher.Constraint("Horizontal", 31, 2, 32, 1))
sketch1.addConstraint(Sketcher.Constraint("Horizontal", 25, 2, 34, 1))
sketch1.addConstraint(Sketcher.Constraint("Horizontal", 24, 1, 35, 2))
sketch1.addConstraint(Sketcher.Constraint("Horizontal", 21, 1, 37, 2))
sketch1.addConstraint(Sketcher.Constraint("Horizontal", 18, 1, 39, 2))
sketch1.addConstraint(Sketcher.Constraint("Horizontal", 15, 1, 41, 2))
sketch1.addConstraint(Sketcher.Constraint("Horizontal", 53, 2, 54, 1))
sketch1.addConstraint(Sketcher.Constraint("Horizontal", 55, 2, 56, 1))
sketch1.addConstraint(Sketcher.Constraint("Horizontal", 57, 2, 58, 1))
sketch1.addConstraint(Sketcher.Constraint("Equal", 27, 29))
sketch1.addConstraint(Sketcher.Constraint("Equal", 29, 31))
sketch1.addConstraint(Sketcher.Constraint("Radius", 1, Q("1.25 in")))
sketch1.addConstraint(Sketcher.Constraint("Radius", 0, Q("0.1875 in")))
sketch1.addConstraint(Sketcher.Constraint("DistanceX", 27, 1, 27, 2, Q("0.055 in")))
sketch1.addConstraint(Sketcher.Constraint("DistanceX", 33, 1, 33, 2, Q("0.077 in")))
sketch1.addConstraint(Sketcher.Constraint("DistanceY", -1, 1, 0, 3, Q("1.25 in")))
sketch1.addConstraint(Sketcher.Constraint("DistanceY", -1, 1, 8, 3, Q("0.625 in")))
sketch1.addConstraint(Sketcher.Constraint("DistanceY", -1, 1, 6, 1, Q("0.8265998 in")))
sketch1.addConstraint(Sketcher.Constraint("DistanceX", 21, 1, -1, 1, 60.7877))
sketch1.addConstraint(Sketcher.Constraint("DistanceX", 2, 3, -1, 1, 55.10594))
sketch1.addConstraint(Sketcher.Constraint("DistanceY", -1, 1, 2, 3, 29.835241))
sketch1.addConstraint(Sketcher.Constraint("DistanceY", -1, 1, 11, 3, 5.51333))
sketch1.addConstraint(Sketcher.Constraint("DistanceX", 7, 2, -1, 1, 69.05923))
sketch1.addConstraint(Sketcher.Constraint("DistanceY", -1, 1, 10, 2, 10.128242))
sketch1.setExpression("Constraints[180]", "Params.sketch1_radius")
sketch1.setExpression("Constraints[181]", "Params.sketch1_radius2")
sketch1.setExpression("Constraints[182]", "Params.sketch1_width")
sketch1.setExpression("Constraints[183]", "Params.sketch1_width2")
pad1 = body.newObject("PartDesign::Pad", "Pad")
pad1.Profile = sketch1
pad1.setExpression("Length", "Params.pad1_length")

doc.recompute()
